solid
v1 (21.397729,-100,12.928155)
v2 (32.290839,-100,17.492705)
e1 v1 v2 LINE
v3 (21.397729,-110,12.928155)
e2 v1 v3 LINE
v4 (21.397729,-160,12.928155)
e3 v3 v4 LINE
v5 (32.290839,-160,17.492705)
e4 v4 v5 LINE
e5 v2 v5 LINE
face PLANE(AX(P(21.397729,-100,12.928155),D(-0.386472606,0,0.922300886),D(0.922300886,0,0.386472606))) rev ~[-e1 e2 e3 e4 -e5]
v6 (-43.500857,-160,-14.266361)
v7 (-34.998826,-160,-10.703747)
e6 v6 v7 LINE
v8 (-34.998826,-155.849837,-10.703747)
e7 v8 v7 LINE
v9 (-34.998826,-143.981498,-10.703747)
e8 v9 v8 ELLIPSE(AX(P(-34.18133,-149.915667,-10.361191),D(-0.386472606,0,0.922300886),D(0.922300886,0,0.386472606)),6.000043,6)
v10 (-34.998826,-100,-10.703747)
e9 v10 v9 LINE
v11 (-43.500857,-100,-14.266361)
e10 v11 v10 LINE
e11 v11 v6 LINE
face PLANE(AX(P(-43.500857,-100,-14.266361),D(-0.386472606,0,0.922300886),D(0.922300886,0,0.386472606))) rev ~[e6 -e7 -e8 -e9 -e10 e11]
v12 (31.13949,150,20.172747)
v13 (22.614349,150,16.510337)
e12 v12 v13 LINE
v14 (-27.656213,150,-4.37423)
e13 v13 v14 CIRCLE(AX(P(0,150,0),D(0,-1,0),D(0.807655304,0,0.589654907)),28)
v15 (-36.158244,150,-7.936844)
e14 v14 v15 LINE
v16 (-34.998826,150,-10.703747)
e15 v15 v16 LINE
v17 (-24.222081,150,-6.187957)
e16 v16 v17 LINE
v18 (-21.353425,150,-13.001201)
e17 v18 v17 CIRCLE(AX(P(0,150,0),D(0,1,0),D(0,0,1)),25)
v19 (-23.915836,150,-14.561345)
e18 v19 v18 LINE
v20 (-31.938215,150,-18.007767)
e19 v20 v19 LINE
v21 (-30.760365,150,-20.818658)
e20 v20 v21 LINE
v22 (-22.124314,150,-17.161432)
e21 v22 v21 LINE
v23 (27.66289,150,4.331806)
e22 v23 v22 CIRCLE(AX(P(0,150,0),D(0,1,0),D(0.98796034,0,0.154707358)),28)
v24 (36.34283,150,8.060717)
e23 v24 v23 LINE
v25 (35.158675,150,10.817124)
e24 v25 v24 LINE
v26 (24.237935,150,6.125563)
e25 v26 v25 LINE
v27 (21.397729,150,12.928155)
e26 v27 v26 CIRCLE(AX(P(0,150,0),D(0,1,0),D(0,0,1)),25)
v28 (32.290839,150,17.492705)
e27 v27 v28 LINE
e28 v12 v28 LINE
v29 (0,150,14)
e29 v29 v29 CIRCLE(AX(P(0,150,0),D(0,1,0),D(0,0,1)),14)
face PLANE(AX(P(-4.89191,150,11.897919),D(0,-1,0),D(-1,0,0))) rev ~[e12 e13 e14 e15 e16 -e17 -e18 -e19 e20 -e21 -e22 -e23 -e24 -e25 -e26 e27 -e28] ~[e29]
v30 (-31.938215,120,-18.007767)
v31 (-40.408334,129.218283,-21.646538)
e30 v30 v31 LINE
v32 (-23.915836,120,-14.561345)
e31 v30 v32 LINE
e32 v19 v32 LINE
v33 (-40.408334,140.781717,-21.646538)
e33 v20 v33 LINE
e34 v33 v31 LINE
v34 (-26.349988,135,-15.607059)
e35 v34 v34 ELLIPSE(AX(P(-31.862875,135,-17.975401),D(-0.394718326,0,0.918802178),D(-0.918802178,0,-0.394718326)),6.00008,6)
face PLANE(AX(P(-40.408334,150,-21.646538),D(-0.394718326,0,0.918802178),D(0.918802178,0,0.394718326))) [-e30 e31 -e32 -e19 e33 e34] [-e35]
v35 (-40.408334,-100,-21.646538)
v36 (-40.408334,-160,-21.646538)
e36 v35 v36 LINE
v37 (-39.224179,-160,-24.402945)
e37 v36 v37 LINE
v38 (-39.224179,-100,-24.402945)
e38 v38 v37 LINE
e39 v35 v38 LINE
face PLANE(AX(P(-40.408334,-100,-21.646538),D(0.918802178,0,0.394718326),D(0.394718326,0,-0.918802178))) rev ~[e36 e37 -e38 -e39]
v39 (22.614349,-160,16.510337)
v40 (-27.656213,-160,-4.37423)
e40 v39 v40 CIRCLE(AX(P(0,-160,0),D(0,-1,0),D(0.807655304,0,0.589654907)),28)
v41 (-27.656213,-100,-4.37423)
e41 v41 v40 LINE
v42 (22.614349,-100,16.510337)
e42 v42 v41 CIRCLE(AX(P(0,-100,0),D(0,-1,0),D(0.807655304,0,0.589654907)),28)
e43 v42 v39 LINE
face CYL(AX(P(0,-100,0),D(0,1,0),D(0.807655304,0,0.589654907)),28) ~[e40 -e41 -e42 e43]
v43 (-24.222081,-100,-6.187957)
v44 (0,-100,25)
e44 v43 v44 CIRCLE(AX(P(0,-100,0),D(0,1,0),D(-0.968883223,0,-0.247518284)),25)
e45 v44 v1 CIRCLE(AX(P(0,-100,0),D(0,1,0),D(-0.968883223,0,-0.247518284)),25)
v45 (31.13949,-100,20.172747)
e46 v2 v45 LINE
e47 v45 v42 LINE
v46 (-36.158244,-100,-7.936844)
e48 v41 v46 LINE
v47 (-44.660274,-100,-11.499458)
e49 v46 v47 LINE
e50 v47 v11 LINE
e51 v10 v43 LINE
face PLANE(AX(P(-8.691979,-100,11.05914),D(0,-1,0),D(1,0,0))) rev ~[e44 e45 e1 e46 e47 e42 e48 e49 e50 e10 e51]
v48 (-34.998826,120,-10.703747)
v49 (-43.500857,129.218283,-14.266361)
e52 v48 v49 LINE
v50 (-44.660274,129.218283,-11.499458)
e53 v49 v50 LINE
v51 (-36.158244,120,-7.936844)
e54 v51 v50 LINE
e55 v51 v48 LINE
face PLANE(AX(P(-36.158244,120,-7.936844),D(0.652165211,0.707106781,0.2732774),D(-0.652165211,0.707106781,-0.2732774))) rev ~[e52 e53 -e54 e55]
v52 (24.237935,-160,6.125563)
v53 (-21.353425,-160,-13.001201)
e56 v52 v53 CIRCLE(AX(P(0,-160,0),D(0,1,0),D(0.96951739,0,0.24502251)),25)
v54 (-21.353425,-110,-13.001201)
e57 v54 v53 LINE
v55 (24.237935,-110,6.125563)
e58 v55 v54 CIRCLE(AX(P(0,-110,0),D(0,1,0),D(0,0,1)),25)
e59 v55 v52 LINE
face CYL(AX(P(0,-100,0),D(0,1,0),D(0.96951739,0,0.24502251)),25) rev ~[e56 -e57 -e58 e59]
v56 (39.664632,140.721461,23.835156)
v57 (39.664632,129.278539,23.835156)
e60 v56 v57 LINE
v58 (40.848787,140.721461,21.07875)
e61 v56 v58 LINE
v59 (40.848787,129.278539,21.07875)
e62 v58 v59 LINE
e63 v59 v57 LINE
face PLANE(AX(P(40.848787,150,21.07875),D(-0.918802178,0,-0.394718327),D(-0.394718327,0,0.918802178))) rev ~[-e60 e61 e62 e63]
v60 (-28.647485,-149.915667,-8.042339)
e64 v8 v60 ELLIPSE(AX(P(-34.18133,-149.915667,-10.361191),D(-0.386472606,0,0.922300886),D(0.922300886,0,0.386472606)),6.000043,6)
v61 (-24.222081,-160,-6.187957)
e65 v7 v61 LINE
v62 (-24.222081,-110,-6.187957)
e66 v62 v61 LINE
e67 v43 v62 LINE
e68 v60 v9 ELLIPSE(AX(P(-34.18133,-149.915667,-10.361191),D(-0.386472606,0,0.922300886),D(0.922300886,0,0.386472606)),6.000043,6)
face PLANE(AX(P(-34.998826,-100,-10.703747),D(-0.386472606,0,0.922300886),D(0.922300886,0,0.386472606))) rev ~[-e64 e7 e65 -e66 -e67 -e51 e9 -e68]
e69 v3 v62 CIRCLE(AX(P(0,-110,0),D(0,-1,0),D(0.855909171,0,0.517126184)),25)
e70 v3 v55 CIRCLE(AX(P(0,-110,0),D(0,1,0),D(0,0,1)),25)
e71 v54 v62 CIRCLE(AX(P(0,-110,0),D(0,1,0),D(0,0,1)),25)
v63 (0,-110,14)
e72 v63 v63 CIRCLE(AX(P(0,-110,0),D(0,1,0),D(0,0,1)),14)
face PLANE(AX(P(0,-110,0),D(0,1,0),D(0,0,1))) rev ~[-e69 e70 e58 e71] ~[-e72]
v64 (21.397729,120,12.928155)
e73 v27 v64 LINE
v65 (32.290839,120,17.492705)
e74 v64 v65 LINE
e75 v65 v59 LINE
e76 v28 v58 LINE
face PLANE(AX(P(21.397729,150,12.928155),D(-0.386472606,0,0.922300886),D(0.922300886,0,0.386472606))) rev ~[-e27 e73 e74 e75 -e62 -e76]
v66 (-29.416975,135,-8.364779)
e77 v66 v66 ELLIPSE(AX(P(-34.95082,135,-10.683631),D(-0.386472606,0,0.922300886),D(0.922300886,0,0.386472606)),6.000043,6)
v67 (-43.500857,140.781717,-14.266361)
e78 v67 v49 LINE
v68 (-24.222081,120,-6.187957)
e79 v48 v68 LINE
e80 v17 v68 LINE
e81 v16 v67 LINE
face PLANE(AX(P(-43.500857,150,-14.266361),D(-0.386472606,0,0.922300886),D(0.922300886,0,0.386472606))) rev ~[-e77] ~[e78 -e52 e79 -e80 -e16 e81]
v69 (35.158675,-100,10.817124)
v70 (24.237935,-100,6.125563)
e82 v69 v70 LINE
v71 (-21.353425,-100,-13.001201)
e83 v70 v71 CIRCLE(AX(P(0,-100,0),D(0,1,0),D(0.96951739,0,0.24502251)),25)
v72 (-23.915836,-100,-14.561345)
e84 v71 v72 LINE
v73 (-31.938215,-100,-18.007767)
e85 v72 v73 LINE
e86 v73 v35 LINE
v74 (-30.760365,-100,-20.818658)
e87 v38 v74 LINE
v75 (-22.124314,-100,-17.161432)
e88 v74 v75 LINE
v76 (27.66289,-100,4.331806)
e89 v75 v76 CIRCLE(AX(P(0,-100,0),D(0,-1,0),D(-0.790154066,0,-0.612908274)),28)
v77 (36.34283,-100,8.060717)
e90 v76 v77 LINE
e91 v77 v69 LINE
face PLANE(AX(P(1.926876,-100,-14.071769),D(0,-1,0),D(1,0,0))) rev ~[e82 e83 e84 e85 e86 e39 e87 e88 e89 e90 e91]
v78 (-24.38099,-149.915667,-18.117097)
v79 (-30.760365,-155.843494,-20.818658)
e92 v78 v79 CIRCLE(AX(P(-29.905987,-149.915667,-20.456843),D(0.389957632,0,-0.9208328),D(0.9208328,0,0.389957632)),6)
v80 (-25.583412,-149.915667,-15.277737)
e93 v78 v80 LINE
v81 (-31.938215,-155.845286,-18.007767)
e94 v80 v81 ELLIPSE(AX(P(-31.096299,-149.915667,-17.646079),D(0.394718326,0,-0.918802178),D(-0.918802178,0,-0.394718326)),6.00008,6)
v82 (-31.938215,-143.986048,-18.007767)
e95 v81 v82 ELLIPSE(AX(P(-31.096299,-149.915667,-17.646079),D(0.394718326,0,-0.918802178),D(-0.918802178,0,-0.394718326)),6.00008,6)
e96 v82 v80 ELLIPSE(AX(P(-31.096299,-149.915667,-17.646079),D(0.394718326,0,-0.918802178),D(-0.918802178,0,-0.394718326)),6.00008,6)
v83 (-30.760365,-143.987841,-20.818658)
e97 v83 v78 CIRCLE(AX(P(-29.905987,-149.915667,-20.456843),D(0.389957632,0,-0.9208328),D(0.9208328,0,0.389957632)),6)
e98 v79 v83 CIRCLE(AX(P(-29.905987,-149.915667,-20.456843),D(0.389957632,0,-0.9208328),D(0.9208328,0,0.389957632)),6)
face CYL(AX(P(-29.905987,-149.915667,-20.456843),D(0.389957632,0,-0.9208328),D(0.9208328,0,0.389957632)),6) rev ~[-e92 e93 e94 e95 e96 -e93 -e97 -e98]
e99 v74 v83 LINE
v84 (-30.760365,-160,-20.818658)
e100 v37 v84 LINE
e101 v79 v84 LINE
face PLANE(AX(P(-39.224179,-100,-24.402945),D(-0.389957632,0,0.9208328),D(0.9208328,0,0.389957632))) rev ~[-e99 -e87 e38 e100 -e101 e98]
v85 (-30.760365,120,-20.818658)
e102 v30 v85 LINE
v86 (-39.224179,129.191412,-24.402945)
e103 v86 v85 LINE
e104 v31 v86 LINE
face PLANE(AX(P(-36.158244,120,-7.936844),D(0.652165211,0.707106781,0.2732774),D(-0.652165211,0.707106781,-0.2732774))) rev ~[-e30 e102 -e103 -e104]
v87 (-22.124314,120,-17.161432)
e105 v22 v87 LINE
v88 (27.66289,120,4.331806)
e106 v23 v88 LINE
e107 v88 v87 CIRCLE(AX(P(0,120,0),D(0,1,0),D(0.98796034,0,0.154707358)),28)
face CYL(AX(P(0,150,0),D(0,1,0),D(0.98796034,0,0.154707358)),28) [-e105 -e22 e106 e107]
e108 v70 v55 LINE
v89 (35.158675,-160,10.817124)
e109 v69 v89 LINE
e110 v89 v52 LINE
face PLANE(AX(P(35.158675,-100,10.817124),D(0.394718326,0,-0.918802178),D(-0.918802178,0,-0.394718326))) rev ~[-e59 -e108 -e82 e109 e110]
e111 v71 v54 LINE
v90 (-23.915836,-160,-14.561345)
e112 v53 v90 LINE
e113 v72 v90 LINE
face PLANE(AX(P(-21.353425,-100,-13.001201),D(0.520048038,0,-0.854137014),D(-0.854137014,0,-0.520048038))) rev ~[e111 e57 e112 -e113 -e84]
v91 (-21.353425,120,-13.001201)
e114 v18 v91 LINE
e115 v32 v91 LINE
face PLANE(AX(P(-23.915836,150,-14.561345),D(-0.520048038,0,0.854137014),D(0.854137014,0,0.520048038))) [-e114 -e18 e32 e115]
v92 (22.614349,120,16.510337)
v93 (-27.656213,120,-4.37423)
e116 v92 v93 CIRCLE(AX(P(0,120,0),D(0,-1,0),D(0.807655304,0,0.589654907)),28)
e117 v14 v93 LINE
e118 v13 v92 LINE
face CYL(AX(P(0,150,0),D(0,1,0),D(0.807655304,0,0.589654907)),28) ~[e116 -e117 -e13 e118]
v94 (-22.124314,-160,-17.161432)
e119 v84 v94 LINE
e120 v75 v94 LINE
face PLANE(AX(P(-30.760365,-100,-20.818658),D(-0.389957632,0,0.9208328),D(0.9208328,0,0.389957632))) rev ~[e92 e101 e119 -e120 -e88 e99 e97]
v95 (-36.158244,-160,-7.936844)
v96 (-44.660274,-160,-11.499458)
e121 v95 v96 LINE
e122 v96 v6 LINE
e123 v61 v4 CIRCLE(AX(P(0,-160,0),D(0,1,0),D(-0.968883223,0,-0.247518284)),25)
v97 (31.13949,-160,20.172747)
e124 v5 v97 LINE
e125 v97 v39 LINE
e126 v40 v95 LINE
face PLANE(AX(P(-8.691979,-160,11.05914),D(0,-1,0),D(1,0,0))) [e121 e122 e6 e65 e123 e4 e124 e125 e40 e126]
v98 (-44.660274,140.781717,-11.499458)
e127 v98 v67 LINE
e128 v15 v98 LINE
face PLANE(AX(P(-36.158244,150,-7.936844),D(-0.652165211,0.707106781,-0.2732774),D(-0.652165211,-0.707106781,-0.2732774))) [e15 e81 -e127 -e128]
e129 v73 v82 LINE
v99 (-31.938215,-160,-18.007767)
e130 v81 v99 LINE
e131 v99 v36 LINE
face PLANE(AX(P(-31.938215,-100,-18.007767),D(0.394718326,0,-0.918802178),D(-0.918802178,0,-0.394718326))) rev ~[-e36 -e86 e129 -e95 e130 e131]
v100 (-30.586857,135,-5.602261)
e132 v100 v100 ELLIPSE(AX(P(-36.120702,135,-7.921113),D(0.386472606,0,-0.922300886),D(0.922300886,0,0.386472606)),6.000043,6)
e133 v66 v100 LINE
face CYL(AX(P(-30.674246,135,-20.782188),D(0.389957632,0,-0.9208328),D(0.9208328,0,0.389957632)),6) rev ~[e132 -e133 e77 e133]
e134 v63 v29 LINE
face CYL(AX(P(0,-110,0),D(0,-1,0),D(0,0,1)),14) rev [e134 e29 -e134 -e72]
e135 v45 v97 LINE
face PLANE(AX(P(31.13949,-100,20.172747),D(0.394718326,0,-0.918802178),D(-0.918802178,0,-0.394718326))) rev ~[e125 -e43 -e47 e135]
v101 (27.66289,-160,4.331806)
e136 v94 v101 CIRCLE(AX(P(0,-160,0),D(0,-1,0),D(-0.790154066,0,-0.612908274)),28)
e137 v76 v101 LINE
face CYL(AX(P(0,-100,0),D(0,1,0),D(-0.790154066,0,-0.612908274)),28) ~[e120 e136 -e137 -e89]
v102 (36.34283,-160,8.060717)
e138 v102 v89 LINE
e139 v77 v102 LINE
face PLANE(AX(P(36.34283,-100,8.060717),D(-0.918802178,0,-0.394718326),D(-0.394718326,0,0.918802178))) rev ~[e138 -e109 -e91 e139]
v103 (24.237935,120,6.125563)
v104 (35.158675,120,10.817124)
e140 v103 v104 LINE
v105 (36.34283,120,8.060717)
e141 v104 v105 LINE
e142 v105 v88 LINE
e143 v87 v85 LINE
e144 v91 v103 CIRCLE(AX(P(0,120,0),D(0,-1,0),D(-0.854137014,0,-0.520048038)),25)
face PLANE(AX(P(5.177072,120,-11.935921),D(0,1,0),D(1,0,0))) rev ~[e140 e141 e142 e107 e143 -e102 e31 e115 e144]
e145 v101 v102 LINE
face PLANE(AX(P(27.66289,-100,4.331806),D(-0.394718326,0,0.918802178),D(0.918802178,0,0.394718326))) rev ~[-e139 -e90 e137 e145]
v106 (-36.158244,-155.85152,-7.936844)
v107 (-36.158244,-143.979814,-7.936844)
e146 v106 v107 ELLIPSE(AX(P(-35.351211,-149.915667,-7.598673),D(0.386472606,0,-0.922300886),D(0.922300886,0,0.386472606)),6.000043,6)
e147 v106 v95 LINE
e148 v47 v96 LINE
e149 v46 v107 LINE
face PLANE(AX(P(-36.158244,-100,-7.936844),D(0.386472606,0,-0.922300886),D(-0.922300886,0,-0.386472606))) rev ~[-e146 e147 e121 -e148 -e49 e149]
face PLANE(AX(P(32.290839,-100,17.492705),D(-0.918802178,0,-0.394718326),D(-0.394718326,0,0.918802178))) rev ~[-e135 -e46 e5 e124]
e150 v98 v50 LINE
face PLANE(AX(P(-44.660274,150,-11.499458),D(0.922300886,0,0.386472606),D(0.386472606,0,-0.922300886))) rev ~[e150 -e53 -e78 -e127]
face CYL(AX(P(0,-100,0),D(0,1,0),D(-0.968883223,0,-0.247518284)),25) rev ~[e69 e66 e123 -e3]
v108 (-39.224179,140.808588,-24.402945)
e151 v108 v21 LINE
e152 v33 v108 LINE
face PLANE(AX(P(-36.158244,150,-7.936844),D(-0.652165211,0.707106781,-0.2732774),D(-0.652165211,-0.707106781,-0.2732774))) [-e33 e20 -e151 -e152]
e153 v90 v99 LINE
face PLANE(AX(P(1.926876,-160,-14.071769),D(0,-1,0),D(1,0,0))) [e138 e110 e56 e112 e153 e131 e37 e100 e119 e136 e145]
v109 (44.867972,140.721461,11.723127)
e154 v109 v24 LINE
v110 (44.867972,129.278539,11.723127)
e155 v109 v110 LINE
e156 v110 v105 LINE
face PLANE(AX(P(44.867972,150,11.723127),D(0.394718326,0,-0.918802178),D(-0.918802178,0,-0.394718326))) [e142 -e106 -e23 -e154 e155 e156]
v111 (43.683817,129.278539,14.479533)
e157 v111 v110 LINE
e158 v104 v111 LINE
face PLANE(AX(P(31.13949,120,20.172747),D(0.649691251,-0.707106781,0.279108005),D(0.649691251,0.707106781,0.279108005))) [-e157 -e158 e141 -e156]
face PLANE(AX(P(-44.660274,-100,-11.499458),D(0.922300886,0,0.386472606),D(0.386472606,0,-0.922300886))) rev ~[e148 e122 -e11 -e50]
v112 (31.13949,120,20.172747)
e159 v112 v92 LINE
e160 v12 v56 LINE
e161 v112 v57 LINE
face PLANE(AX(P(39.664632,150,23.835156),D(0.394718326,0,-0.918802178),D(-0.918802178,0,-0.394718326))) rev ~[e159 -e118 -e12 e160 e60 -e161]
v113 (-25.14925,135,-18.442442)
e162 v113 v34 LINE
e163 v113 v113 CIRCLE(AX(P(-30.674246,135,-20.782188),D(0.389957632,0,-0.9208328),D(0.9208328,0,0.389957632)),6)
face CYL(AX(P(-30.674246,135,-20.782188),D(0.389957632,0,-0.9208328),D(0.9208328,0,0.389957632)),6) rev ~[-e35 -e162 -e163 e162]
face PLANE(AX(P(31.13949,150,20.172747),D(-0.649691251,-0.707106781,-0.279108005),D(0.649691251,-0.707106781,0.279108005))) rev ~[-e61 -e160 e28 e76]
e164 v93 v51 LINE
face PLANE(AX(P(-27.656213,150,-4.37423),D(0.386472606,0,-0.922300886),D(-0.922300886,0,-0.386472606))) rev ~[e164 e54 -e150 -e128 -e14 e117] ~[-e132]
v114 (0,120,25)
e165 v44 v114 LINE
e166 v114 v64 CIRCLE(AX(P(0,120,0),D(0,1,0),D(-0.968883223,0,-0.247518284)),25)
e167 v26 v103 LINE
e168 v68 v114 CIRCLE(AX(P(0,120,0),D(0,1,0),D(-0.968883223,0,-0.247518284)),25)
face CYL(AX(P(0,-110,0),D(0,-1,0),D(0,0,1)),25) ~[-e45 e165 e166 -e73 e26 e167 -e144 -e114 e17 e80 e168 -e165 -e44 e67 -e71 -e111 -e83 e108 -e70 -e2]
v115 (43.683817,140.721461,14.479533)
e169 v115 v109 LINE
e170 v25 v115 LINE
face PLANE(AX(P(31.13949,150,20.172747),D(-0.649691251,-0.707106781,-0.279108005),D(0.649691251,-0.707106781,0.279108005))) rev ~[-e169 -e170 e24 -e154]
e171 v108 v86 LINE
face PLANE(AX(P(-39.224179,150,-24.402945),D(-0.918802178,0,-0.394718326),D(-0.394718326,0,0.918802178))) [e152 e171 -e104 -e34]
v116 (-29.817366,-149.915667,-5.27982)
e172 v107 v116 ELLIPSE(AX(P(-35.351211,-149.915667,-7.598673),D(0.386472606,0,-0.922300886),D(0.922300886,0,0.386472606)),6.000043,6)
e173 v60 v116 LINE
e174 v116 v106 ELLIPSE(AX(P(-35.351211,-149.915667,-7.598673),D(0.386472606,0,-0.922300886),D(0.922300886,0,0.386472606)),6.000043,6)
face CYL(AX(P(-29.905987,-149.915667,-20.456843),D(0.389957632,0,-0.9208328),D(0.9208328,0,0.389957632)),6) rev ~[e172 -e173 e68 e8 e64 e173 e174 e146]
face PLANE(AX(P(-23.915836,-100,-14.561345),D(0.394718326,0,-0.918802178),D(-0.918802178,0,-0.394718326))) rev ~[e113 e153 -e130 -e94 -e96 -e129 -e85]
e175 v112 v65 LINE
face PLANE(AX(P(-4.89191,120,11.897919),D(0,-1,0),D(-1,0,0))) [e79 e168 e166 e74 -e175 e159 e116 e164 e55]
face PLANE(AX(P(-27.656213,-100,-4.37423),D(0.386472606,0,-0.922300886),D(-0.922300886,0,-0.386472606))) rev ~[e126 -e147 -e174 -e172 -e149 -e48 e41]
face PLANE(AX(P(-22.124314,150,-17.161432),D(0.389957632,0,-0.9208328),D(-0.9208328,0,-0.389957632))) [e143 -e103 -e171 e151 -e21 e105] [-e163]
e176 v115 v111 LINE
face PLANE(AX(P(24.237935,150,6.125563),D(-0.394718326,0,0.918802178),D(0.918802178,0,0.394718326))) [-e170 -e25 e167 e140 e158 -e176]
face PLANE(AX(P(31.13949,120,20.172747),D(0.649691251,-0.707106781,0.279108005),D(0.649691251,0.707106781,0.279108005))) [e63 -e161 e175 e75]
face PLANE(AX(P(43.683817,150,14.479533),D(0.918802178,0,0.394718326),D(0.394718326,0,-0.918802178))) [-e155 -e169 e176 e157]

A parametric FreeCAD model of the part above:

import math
import FreeCAD as App
import Part
import Sketcher
Q = App.Units.Quantity

doc = App.newDocument("Part")
body = doc.addObject("PartDesign::Body", "Body")

sketch1 = doc.addObject("Sketcher::SketchObject", "Sketch")
body.addObject(sketch1)
sketch1.AttachmentSupport = (doc.XZ_Plane, [""])
sketch1.MapMode = "FlatFace"
sketch1.addGeometry(Part.Circle(App.Vector(0, 0, 0), App.Vector(0, 0, 1), 25), False)
sketch1.addGeometry(Part.Circle(App.Vector(0, 0, 0), App.Vector(0, 0, 1), 14), False)
sketch1.addConstraint(Sketcher.Constraint("Coincident", 0, 3, -1, 1))
sketch1.addConstraint(Sketcher.Constraint("Coincident", 1, 3, -1, 1))
sketch1.addConstraint(Sketcher.Constraint("Diameter", 0, Q("50 mm")))
sketch1.addConstraint(Sketcher.Constraint("Diameter", 1, Q("28 mm")))
pad1 = doc.addObject("PartDesign::Pad", "Pad")
body.addObject(pad1)
pad1.Profile = sketch1
pad1.Type = "TwoLengths"
pad1.Length = 150
pad1.Length2 = 110
pad1.Reversed = True

sketch2 = doc.addObject("Sketcher::SketchObject", "Sketch001")
body.addObject(sketch2)
sketch2.AttachmentSupport = (doc.XZ_Plane, [""])
sketch2.MapMode = "FlatFace"
sketch2.AttachmentOffset = App.Placement(App.Vector(0, 0, -150), App.Rotation())
sketch2.addGeometry(Part.LineSegment(App.Vector(-23.9, -14.6, 0), App.Vector(-21.4, -13, 0)), False)
sketch2.addGeometry(Part.ArcOfCircle(Part.Circle(App.Vector(0, 0, 0), App.Vector(0, 0, 1), 25), math.radians(-149), math.radians(14)), False)
sketch2.addGeometry(Part.LineSegment(App.Vector(24.2, 6.1, 0), App.Vector(43.7, 14.5, 0)), False)
sketch2.addGeometry(Part.LineSegment(App.Vector(43.7, 14.5, 0), App.Vector(44.9, 11.7, 0)), False)
sketch2.addGeometry(Part.LineSegment(App.Vector(44.9, 11.7, 0), App.Vector(27.7, 4.3, 0)), False)
sketch2.addGeometry(Part.ArcOfCircle(Part.Circle(App.Vector(0, 0, 0), App.Vector(0, 0, 1), 28), math.radians(-142), math.radians(9)), False)
sketch2.addGeometry(Part.LineSegment(App.Vector(-22.1, -17.2, 0), App.Vector(-39.2, -24.4, 0)), False)
sketch2.addGeometry(Part.LineSegment(App.Vector(-39.2, -24.4, 0), App.Vector(-40.4, -21.6, 0)), False)
sketch2.addGeometry(Part.LineSegment(App.Vector(-40.4, -21.6, 0), App.Vector(-23.9, -14.6, 0)), False)
sketch2.addGeometry(Part.LineSegment(App.Vector(-24.2, -6.2, 0), App.Vector(-43.5, -14.3, 0)), False)
sketch2.addGeometry(Part.LineSegment(App.Vector(-43.5, -14.3, 0), App.Vector(-44.7, -11.5, 0)), False)
sketch2.addGeometry(Part.LineSegment(App.Vector(-44.7, -11.5, 0), App.Vector(-27.7, -4.4, 0)), False)
sketch2.addGeometry(Part.ArcOfCircle(Part.Circle(App.Vector(0, 0, 0), App.Vector(0, 0, 1), 28), math.radians(36), math.radians(189)), False)
sketch2.addGeometry(Part.LineSegment(App.Vector(22.6, 16.5, 0), App.Vector(39.7, 23.8, 0)), False)
sketch2.addGeometry(Part.LineSegment(App.Vector(39.7, 23.8, 0), App.Vector(40.8, 21.1, 0)), False)
sketch2.addGeometry(Part.LineSegment(App.Vector(40.8, 21.1, 0), App.Vector(21.4, 12.9, 0)), False)
sketch2.addGeometry(Part.ArcOfCircle(Part.Circle(App.Vector(0, 0, 0), App.Vector(0, 0, 1), 25), math.radians(31), math.radians(194)), False)
sketch2.addConstraint(Sketcher.Constraint("Coincident", 0, 2, 1, 1))
sketch2.addConstraint(Sketcher.Constraint("Coincident", 1, 2, 2, 1))
sketch2.addConstraint(Sketcher.Constraint("Coincident", 2, 2, 3, 1))
sketch2.addConstraint(Sketcher.Constraint("Coincident", 3, 2, 4, 1))
sketch2.addConstraint(Sketcher.Constraint("Coincident", 4, 2, 5, 2))
sketch2.addConstraint(Sketcher.Constraint("Coincident", 5, 1, 6, 1))
sketch2.addConstraint(Sketcher.Constraint("Coincident", 6, 2, 7, 1))
sketch2.addConstraint(Sketcher.Constraint("Coincident", 7, 2, 8, 1))
sketch2.addConstraint(Sketcher.Constraint("Coincident", 8, 2, 0, 1))
sketch2.addConstraint(Sketcher.Constraint("Coincident", 9, 2, 10, 1))
sketch2.addConstraint(Sketcher.Constraint("Coincident", 10, 2, 11, 1))
sketch2.addConstraint(Sketcher.Constraint("Coincident", 11, 2, 12, 2))
sketch2.addConstraint(Sketcher.Constraint("Coincident", 12, 1, 13, 1))
sketch2.addConstraint(Sketcher.Constraint("Coincident", 13, 2, 14, 1))
sketch2.addConstraint(Sketcher.Constraint("Coincident", 14, 2, 15, 1))
sketch2.addConstraint(Sketcher.Constraint("Coincident", 15, 2, 16, 1))
sketch2.addConstraint(Sketcher.Constraint("Coincident", 16, 2, 9, 1))
sketch2.addConstraint(Sketcher.Constraint("Coincident", 1, 3, -1, 1))
sketch2.addConstraint(Sketcher.Constraint("Coincident", 5, 3, -1, 1))
sketch2.addConstraint(Sketcher.Constraint("Coincident", 12, 3, -1, 1))
sketch2.addConstraint(Sketcher.Constraint("Coincident", 16, 3, -1, 1))
sketch2.addConstraint(Sketcher.Constraint("Equal", 5, 12))
sketch2.addConstraint(Sketcher.Constraint("Equal", 1, 16))
sketch2.addConstraint(Sketcher.Constraint("Perpendicular", 2, 3))
sketch2.addConstraint(Sketcher.Constraint("Perpendicular", 3, 4))
sketch2.addConstraint(Sketcher.Constraint("Perpendicular", 4, 7))
sketch2.addConstraint(Sketcher.Constraint("Perpendicular", 7, 8))
sketch2.addConstraint(Sketcher.Constraint("Perpendicular", 9, 10))
sketch2.addConstraint(Sketcher.Constraint("Perpendicular", 10, 11))
sketch2.addConstraint(Sketcher.Constraint("Parallel", 8, 13))
sketch2.addConstraint(Sketcher.Constraint("Perpendicular", 13, 14))
sketch2.addConstraint(Sketcher.Constraint("Parallel", 11, 15))
sketch2.addConstraint(Sketcher.Constraint("Equal", 0, 3))
sketch2.addConstraint(Sketcher.Constraint("Equal", 3, 7))
sketch2.addConstraint(Sketcher.Constraint("Equal", 7, 10))
sketch2.addConstraint(Sketcher.Constraint("Equal", 10, 14))
sketch2.addConstraint(Sketcher.Constraint("Radius", 1, Q("25 mm")))
sketch2.addConstraint(Sketcher.Constraint("Radius", 5, Q("28 mm")))
sketch2.addConstraint(Sketcher.Constraint("Distance", 0, Q("3 mm")))
sketch2.addConstraint(Sketcher.Constraint("Distance", 6, Q("18.57 mm")))
sketch2.addConstraint(Sketcher.Constraint("Distance", 8, Q("17.949998 mm")))
sketch2.addConstraint(Sketcher.Constraint("DistanceY", 15, 2, 13, 2, Q("10.907002 mm")))
sketch2.addConstraint(Sketcher.Constraint("DistanceY", 0, 2, -1, 1, Q("13.001201 mm")))
sketch2.addConstraint(Sketcher.Constraint("DistanceY", 6, 2, 8, 2, Q("9.8416 mm")))
sketch2.addConstraint(Sketcher.Constraint("DistanceX", 11, 2, 5, 1, Q("5.531899 mm")))
sketch2.addConstraint(Sketcher.Constraint("DistanceY", 5, 1, 11, 2, Q("12.787201 mm")))
sketch2.addConstraint(Sketcher.Constraint("Distance", 13, Q("18.557078 mm")))
sketch2.addConstraint(Sketcher.Constraint("Distance", 15, Q("21.08971 mm")))
sketch2.addConstraint(Sketcher.Constraint("DistanceX", -1, 1, 4, 2, Q("27.66289 mm")))
sketch2.addConstraint(Sketcher.Constraint("DistanceY", 9, 2, -1, 1, Q("14.266361 mm")))
sketch2.addConstraint(Sketcher.Constraint("DistanceY", 1, 2, 2, 2, Q("8.35397 mm")))
pad2 = doc.addObject("PartDesign::Pad", "Pad001")
body.addObject(pad2)
pad2.Profile = sketch2
pad2.Length = 30

sketch3 = doc.addObject("Sketcher::SketchObject", "Sketch002")
body.addObject(sketch3)
sketch3.Placement = App.Placement(App.Vector(2.798049, 0, -6.607219), App.Rotation(App.Vector(-0.9208328, 0, -0.389957632), App.Vector(0, 1, 0), App.Vector(0.389957632, 0, -0.9208328), "ZXY"))
sketch3.addGeometry(Part.Circle(App.Vector(36, 135, 0), App.Vector(0, 0, 1), 6), False)
sketch3.addConstraint(Sketcher.Constraint("Diameter", 0, Q("12 mm")))
sketch3.addConstraint(Sketcher.Constraint("DistanceY", -1, 1, 0, 3, Q("135 mm")))
sketch3.addConstraint(Sketcher.Constraint("DistanceX", -1, 1, 0, 3, Q("36.350025 mm")))
pocket1 = doc.addObject("PartDesign::Pocket", "Pocket")
body.addObject(pocket1)
pocket1.Profile = sketch3
pocket1.Length = 30

sketch4 = doc.addObject("Sketcher::SketchObject", "Sketch003")
body.addObject(sketch4)
sketch4.Placement = App.Placement(App.Vector(-2.464399, 0, 5.736483), App.Rotation(App.Vector(0.918802178, 0, 0.394718326), App.Vector(0, 0.999999999, 0), App.Vector(-0.394718326, 0, 0.918802178), "ZXY"))
sketch4.addGeometry(Part.LineSegment(App.Vector(37, 150, 0), App.Vector(46, 141, 0)), False)
sketch4.addGeometry(Part.LineSegment(App.Vector(46, 141, 0), App.Vector(66, 155, 0)), False)
sketch4.addGeometry(Part.LineSegment(App.Vector(66, 155, 0), App.Vector(37, 150, 0)), False)
sketch4.addGeometry(Part.LineSegment(App.Vector(63, 146, 0), App.Vector(37, 120, 0)), False)
sketch4.addGeometry(Part.LineSegment(App.Vector(37, 120, 0), App.Vector(73, 102, 0)), False)
sketch4.addGeometry(Part.LineSegment(App.Vector(73, 102, 0), App.Vector(73, 136, 0)), False)
sketch4.addGeometry(Part.LineSegment(App.Vector(73, 136, 0), App.Vector(63, 146, 0)), False)
sketch4.addConstraint(Sketcher.Constraint("Coincident", 0, 2, 1, 1))
sketch4.addConstraint(Sketcher.Constraint("Coincident", 1, 2, 2, 1))
sketch4.addConstraint(Sketcher.Constraint("Coincident", 2, 2, 0, 1))
sketch4.addConstraint(Sketcher.Constraint("Coincident", 3, 2, 4, 1))
sketch4.addConstraint(Sketcher.Constraint("Coincident", 4, 2, 5, 1))
sketch4.addConstraint(Sketcher.Constraint("Coincident", 5, 2, 6, 1))
sketch4.addConstraint(Sketcher.Constraint("Coincident", 6, 2, 3, 1))
sketch4.addConstraint(Sketcher.Constraint("Vertical", 5))
sketch4.addConstraint(Sketcher.Constraint("Perpendicular", 0, 3))
sketch4.addConstraint(Sketcher.Constraint("Perpendicular", 3, 6))
sketch4.addConstraint(Sketcher.Constraint("Vertical", 2, 2, 3, 2))
sketch4.addConstraint(Sketcher.Constraint("Angle", 0, Q("-45 deg")))
sketch4.addConstraint(Sketcher.Constraint("DistanceY", -1, 1, 2, 2, Q("150 mm")))
sketch4.addConstraint(Sketcher.Constraint("DistanceY", -1, 1, 3, 2, Q("120 mm")))
sketch4.addConstraint(Sketcher.Constraint("Distance", 2, Q("29.8932 mm")))
sketch4.addConstraint(Sketcher.Constraint("DistanceY", -1, 1, 5, 2, Q("136.043499 mm")))
sketch4.addConstraint(Sketcher.Constraint("Distance", 3, Q("37.195291 mm")))
sketch4.addConstraint(Sketcher.Constraint("Distance", 4, Q("40.877378 mm")))
sketch4.addConstraint(Sketcher.Constraint("DistanceY", -1, 1, 0, 2, Q("140.721461 mm")))
sketch4.addConstraint(Sketcher.Constraint("DistanceX", -1, 1, 1, 2, Q("66.071389 mm")))
sketch4.addConstraint(Sketcher.Constraint("DistanceY", -1, 1, 1, 2, Q("154.845921 mm")))
pocket2 = doc.addObject("PartDesign::Pocket", "Pocket001")
body.addObject(pocket2)
pocket2.Profile = sketch4
pocket2.Length = 30

sketch5 = doc.addObject("Sketcher::SketchObject", "Sketch004")
body.addObject(sketch5)
sketch5.Placement = App.Placement(App.Vector(-2.571593, 0, 6.137001), App.Rotation(App.Vector(0.922300886, 0, 0.386472606), App.Vector(0, 1, 0), App.Vector(-0.386472606, 0, 0.922300886), "ZXY"))
sketch5.addGeometry(Part.LineSegment(App.Vector(-45.6, 140.8, 0), App.Vector(-36.4, 150, 0)), False)
sketch5.addGeometry(Part.LineSegment(App.Vector(-36.4, 150, 0), App.Vector(-36.4, 154, 0)), False)
sketch5.addGeometry(Part.LineSegment(App.Vector(-36.4, 154, 0), App.Vector(-52.2, 154, 0)), False)
sketch5.addGeometry(Part.LineSegment(App.Vector(-52.2, 154, 0), App.Vector(-45.6, 140.8, 0)), False)
sketch5.addGeometry(Part.LineSegment(App.Vector(-36.4, 120, 0), App.Vector(-66.1, 149.7, 0)), False)
sketch5.addGeometry(Part.LineSegment(App.Vector(-66.1, 149.7, 0), App.Vector(-66.1, 112.1, 0)), False)
sketch5.addGeometry(Part.LineSegment(App.Vector(-66.1, 112.1, 0), App.Vector(-36.4, 120, 0)), False)
sketch5.addConstraint(Sketcher.Constraint("Coincident", 0, 2, 1, 1))
sketch5.addConstraint(Sketcher.Constraint("Coincident", 1, 2, 2, 1))
sketch5.addConstraint(Sketcher.Constraint("Coincident", 2, 2, 3, 1))
sketch5.addConstraint(Sketcher.Constraint("Coincident", 3, 2, 0, 1))
sketch5.addConstraint(Sketcher.Constraint("Coincident", 4, 2, 5, 1))
sketch5.addConstraint(Sketcher.Constraint("Coincident", 5, 2, 6, 1))
sketch5.addConstraint(Sketcher.Constraint("Coincident", 6, 2, 4, 1))
sketch5.addConstraint(Sketcher.Constraint("Vertical", 1))
sketch5.addConstraint(Sketcher.Constraint("Horizontal", 2))
sketch5.addConstraint(Sketcher.Constraint("Vertical", 5))
sketch5.addConstraint(Sketcher.Constraint("Perpendicular", 0, 4))
sketch5.addConstraint(Sketcher.Constraint("Vertical", 1, 2, 6, 2))
sketch5.addConstraint(Sketcher.Constraint("Angle", 0, Q("45 deg")))
sketch5.addConstraint(Sketcher.Constraint("DistanceY", -1, 1, 0, 2, Q("150 mm")))
sketch5.addConstraint(Sketcher.Constraint("DistanceY", -1, 1, 6, 2, Q("120 mm")))
sketch5.addConstraint(Sketcher.Constraint("Distance", 0, Q("13.036621 mm")))
sketch5.addConstraint(Sketcher.Constraint("Distance", 4, Q("41.964251 mm")))
sketch5.addConstraint(Sketcher.Constraint("DistanceX", 2, 2, 2, 1, Q("15.822645 mm")))
sketch5.addConstraint(Sketcher.Constraint("DistanceY", 1, 1, 1, 2, Q("3.982697 mm")))
sketch5.addConstraint(Sketcher.Constraint("DistanceY", 5, 2, 5, 1, Q("37.536977 mm")))
sketch5.addConstraint(Sketcher.Constraint("DistanceX", 4, 2, -1, 1, Q("66.089359 mm")))
pocket3 = doc.addObject("PartDesign::Pocket", "Pocket002")
body.addObject(pocket3)
pocket3.Profile = sketch5
pocket3.Length = 30

sketch6 = doc.addObject("Sketcher::SketchObject", "Sketch005")
body.addObject(sketch6)
sketch6.AttachmentSupport = (doc.XZ_Plane, [""])
sketch6.MapMode = "FlatFace"
sketch6.AttachmentOffset = App.Placement(App.Vector(0, 0, 110), App.Rotation())
sketch6.addGeometry(Part.LineSegment(App.Vector(-23.9, -14.6, 0), App.Vector(-31.9, -18, 0)), False)
sketch6.addGeometry(Part.LineSegment(App.Vector(-31.9, -18, 0), App.Vector(-40.4, -21.6, 0)), False)
sketch6.addGeometry(Part.LineSegment(App.Vector(-40.4, -21.6, 0), App.Vector(-39.2, -24.4, 0)), False)
sketch6.addGeometry(Part.LineSegment(App.Vector(-39.2, -24.4, 0), App.Vector(-30.8, -20.8, 0)), False)
sketch6.addGeometry(Part.LineSegment(App.Vector(-30.8, -20.8, 0), App.Vector(-22.1, -17.2, 0)), False)
sketch6.addGeometry(Part.ArcOfCircle(Part.Circle(App.Vector(0, 0, 0), App.Vector(0, 0, 1), 28), math.radians(-142), math.radians(9)), False)
sketch6.addGeometry(Part.LineSegment(App.Vector(27.7, 4.3, 0), App.Vector(36.3, 8.1, 0)), False)
sketch6.addGeometry(Part.LineSegment(App.Vector(36.3, 8.1, 0), App.Vector(35.2, 10.8, 0)), False)
sketch6.addGeometry(Part.LineSegment(App.Vector(35.2, 10.8, 0), App.Vector(24.2, 6.1, 0)), False)
sketch6.addGeometry(Part.ArcOfCircle(Part.Circle(App.Vector(0, 0, 0), App.Vector(0, 0, 1), 25), math.radians(-149), math.radians(14)), False)
sketch6.addGeometry(Part.LineSegment(App.Vector(-21.4, -13, 0), App.Vector(-23.9, -14.6, 0)), False)
sketch6.addGeometry(Part.LineSegment(App.Vector(-27.7, -4.4, 0), App.Vector(-36.2, -7.9, 0)), False)
sketch6.addGeometry(Part.LineSegment(App.Vector(-36.2, -7.9, 0), App.Vector(-44.7, -11.5, 0)), False)
sketch6.addGeometry(Part.LineSegment(App.Vector(-44.7, -11.5, 0), App.Vector(-43.5, -14.3, 0)), False)
sketch6.addGeometry(Part.LineSegment(App.Vector(-43.5, -14.3, 0), App.Vector(-35, -10.7, 0)), False)
sketch6.addGeometry(Part.LineSegment(App.Vector(-35, -10.7, 0), App.Vector(-24.2, -6.2, 0)), False)
sketch6.addGeometry(Part.ArcOfCircle(Part.Circle(App.Vector(0, 0, 0), App.Vector(0, 0, 1), 25), math.radians(31), math.radians(194)), False)
sketch6.addGeometry(Part.LineSegment(App.Vector(21.4, 12.9, 0), App.Vector(32.3, 17.5, 0)), False)
sketch6.addGeometry(Part.LineSegment(App.Vector(32.3, 17.5, 0), App.Vector(31.1, 20.2, 0)), False)
sketch6.addGeometry(Part.LineSegment(App.Vector(31.1, 20.2, 0), App.Vector(22.6, 16.5, 0)), False)
sketch6.addGeometry(Part.ArcOfCircle(Part.Circle(App.Vector(0, 0, 0), App.Vector(0, 0, 1), 28), math.radians(36), math.radians(189)), False)
sketch6.addConstraint(Sketcher.Constraint("Coincident", 0, 2, 1, 1))
sketch6.addConstraint(Sketcher.Constraint("Coincident", 1, 2, 2, 1))
sketch6.addConstraint(Sketcher.Constraint("Coincident", 2, 2, 3, 1))
sketch6.addConstraint(Sketcher.Constraint("Coincident", 3, 2, 4, 1))
sketch6.addConstraint(Sketcher.Constraint("Coincident", 4, 2, 5, 1))
sketch6.addConstraint(Sketcher.Constraint("Coincident", 5, 2, 6, 1))
sketch6.addConstraint(Sketcher.Constraint("Coincident", 6, 2, 7, 1))
sketch6.addConstraint(Sketcher.Constraint("Coincident", 7, 2, 8, 1))
sketch6.addConstraint(Sketcher.Constraint("Coincident", 8, 2, 9, 2))
sketch6.addConstraint(Sketcher.Constraint("Coincident", 9, 1, 10, 1))
sketch6.addConstraint(Sketcher.Constraint("Coincident", 10, 2, 0, 1))
sketch6.addConstraint(Sketcher.Constraint("Coincident", 11, 2, 12, 1))
sketch6.addConstraint(Sketcher.Constraint("Coincident", 12, 2, 13, 1))
sketch6.addConstraint(Sketcher.Constraint("Coincident", 13, 2, 14, 1))
sketch6.addConstraint(Sketcher.Constraint("Coincident", 14, 2, 15, 1))
sketch6.addConstraint(Sketcher.Constraint("Coincident", 15, 2, 16, 2))
sketch6.addConstraint(Sketcher.Constraint("Coincident", 16, 1, 17, 1))
sketch6.addConstraint(Sketcher.Constraint("Coincident", 17, 2, 18, 1))
sketch6.addConstraint(Sketcher.Constraint("Coincident", 18, 2, 19, 1))
sketch6.addConstraint(Sketcher.Constraint("Coincident", 19, 2, 20, 1))
sketch6.addConstraint(Sketcher.Constraint("Coincident", 20, 2, 11, 1))
sketch6.addConstraint(Sketcher.Constraint("Coincident", 5, 3, -1, 1))
sketch6.addConstraint(Sketcher.Constraint("Coincident", 9, 3, -1, 1))
sketch6.addConstraint(Sketcher.Constraint("Coincident", 16, 3, -1, 1))
sketch6.addConstraint(Sketcher.Constraint("Coincident", 20, 3, -1, 1))
sketch6.addConstraint(Sketcher.Constraint("Equal", 9, 16))
sketch6.addConstraint(Sketcher.Constraint("Equal", 5, 20))
sketch6.addConstraint(Sketcher.Constraint("Parallel", 0, 1))
sketch6.addConstraint(Sketcher.Constraint("Perpendicular", 1, 2))
sketch6.addConstraint(Sketcher.Constraint("Parallel", 3, 4))
sketch6.addConstraint(Sketcher.Constraint("Perpendicular", 2, 6))
sketch6.addConstraint(Sketcher.Constraint("Perpendicular", 6, 7))
sketch6.addConstraint(Sketcher.Constraint("Perpendicular", 7, 8))
sketch6.addConstraint(Sketcher.Constraint("Parallel", 11, 12))
sketch6.addConstraint(Sketcher.Constraint("Perpendicular", 12, 13))
sketch6.addConstraint(Sketcher.Constraint("Perpendicular", 13, 14))
sketch6.addConstraint(Sketcher.Constraint("Parallel", 14, 15))
sketch6.addConstraint(Sketcher.Constraint("Parallel", 15, 17))
sketch6.addConstraint(Sketcher.Constraint("Perpendicular", 8, 18))
sketch6.addConstraint(Sketcher.Constraint("Perpendicular", 18, 19))
sketch6.addConstraint(Sketcher.Constraint("Equal", 2, 7))
sketch6.addConstraint(Sketcher.Constraint("Equal", 7, 10))
sketch6.addConstraint(Sketcher.Constraint("Equal", 11, 12))
sketch6.addConstraint(Sketcher.Constraint("Equal", 10, 13))
sketch6.addConstraint(Sketcher.Constraint("Equal", 12, 14))
sketch6.addConstraint(Sketcher.Constraint("Radius", 5, Q("28 mm")))
sketch6.addConstraint(Sketcher.Constraint("Radius", 9, Q("25 mm")))
sketch6.addConstraint(Sketcher.Constraint("Distance", 2, Q("3 mm")))
sketch6.addConstraint(Sketcher.Constraint("Distance", 17, Q("11.810798 mm")))
sketch6.addConstraint(Sketcher.Constraint("DistanceY", 9, 1, -1, 1, Q("13.001201 mm")))
sketch6.addConstraint(Sketcher.Constraint("DistanceX", 0, 2, 4, 2, Q("9.813902 mm")))
sketch6.addConstraint(Sketcher.Constraint("DistanceY", 10, 2, 11, 2, Q("6.624501 mm")))
sketch6.addConstraint(Sketcher.Constraint("DistanceY", 3, 2, 12, 2, Q("9.3192 mm")))
sketch6.addConstraint(Sketcher.Constraint("DistanceX", 16, 1, 6, 2, Q("14.945101 mm")))
sketch6.addConstraint(Sketcher.Constraint("DistanceY", 5, 2, 17, 2, Q("13.160899 mm")))
sketch6.addConstraint(Sketcher.Constraint("Distance", 6, Q("9.447018 mm")))
sketch6.addConstraint(Sketcher.Constraint("Distance", 15, Q("11.684631 mm")))
sketch6.addConstraint(Sketcher.Constraint("Distance", 19, Q("9.278539 mm")))
sketch6.addConstraint(Sketcher.Constraint("DistanceY", 1, 2, -1, 1, Q("21.646538 mm")))
sketch6.addConstraint(Sketcher.Constraint("DistanceX", 2, 2, -1, 1, Q("39.224179 mm")))
sketch6.addConstraint(Sketcher.Constraint("DistanceY", 3, 2, -1, 1, Q("20.818658 mm")))
sketch6.addConstraint(Sketcher.Constraint("DistanceY", 4, 2, -1, 1, Q("17.161432 mm")))
sketch6.addConstraint(Sketcher.Constraint("DistanceX", -1, 1, 5, 2, Q("27.66289 mm")))
pad3 = doc.addObject("PartDesign::Pad", "Pad002")
body.addObject(pad3)
pad3.Profile = sketch6
pad3.Type = "TwoLengths"
pad3.Length = 50
pad3.Length2 = 10

sketch7 = doc.addObject("Sketcher::SketchObject", "Sketch006")
body.addObject(sketch7)
sketch7.Placement = App.Placement(App.Vector(2.798049, 0, -6.607219), App.Rotation(App.Vector(-0.9208328, 0, -0.389957632), App.Vector(0, 1, 0), App.Vector(0.389957632, 0, -0.9208328), "ZXY"))
sketch7.addGeometry(Part.Circle(App.Vector(36, -150, 0), App.Vector(0, 0, 1), 6), False)
sketch7.addConstraint(Sketcher.Constraint("Diameter", 0, Q("12 mm")))
sketch7.addConstraint(Sketcher.Constraint("DistanceX", -1, 1, 0, 3, Q("35.515715 mm")))
sketch7.addConstraint(Sketcher.Constraint("DistanceY", 0, 3, -1, 1, Q("149.915667 mm")))
pocket4 = doc.addObject("PartDesign::Pocket", "Pocket003")
body.addObject(pocket4)
pocket4.Profile = sketch7
pocket4.Length = 20

doc.recompute()
